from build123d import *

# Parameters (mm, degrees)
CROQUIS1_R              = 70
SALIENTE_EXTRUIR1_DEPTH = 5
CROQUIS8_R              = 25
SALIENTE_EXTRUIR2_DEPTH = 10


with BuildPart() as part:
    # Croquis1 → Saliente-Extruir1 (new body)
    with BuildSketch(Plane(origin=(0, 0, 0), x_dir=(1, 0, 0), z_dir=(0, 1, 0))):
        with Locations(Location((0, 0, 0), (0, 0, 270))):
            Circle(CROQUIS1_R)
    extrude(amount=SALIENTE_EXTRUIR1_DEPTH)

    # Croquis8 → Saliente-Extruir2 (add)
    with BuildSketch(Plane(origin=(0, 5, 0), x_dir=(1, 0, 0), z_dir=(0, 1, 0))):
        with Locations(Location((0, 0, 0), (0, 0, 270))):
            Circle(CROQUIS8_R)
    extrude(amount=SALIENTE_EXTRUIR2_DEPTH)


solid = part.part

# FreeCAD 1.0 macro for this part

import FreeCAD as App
import Part
import Sketcher

doc = App.newDocument("Part")
params = doc.addObject("Spreadsheet::Sheet", "Params")
for row, (alias, value) in enumerate([
    ("sketch1_diameter", "140 mm"),
    ("pad1_length", "5 mm"),
    ("sketch2_diameter", "50 mm"),
    ("pad2_length", "10 mm"),
], start=1):
    params.set(f"A{row}", alias)
    params.set(f"B{row}", "=" + value)
    params.setAlias(f"B{row}", alias)

body = doc.addObject("PartDesign::Body", "Body")

# Sketch on XZ plane
sketch1 = body.newObject("Sketcher::SketchObject", "Sketch")
sketch1.AttachmentSupport = (doc.getObject("XZ_Plane"), [""])
sketch1.MapMode = "FlatFace"
sketch1.addGeometry(Part.Circle(App.Vector(0, 0, 0), App.Vector(0, 0, 1), 70), False)
sketch1.addConstraint([
    Sketcher.Constraint("Coincident", 0, 3, -1, 1),
    Sketcher.Constraint("Diameter", 0, 140.0),
])
sketch1.setExpression("Constraints[1]", "Params.sketch1_diameter")
pad1 = body.newObject("PartDesign::Pad", "Pad")
pad1.Profile = sketch1
pad1.setExpression("Length", "Params.pad1_length")
pad1.Reversed = True

# Sketch on XZ plane
sketch2 = body.newObject("Sketcher::SketchObject", "Sketch001")
sketch2.AttachmentSupport = (doc.getObject("XZ_Plane"), [""])
sketch2.MapMode = "FlatFace"
sketch2.AttachmentOffset = App.Placement(App.Vector(0, 0, -5), App.Rotation())
sketch2.addGeometry(Part.Circle(App.Vector(0, 0, 0), App.Vector(0, 0, 1), 25), False)
sketch2.addConstraint([
    Sketcher.Constraint("Coincident", 0, 3, -1, 1),
    Sketcher.Constraint("Diameter", 0, 50.0),
])
sketch2.setExpression("Constraints[1]", "Params.sketch2_diameter")
pad2 = body.newObject("PartDesign::Pad", "Pad001")
pad2.Profile = sketch2
pad2.setExpression("Length", "Params.pad2_length")
pad2.Reversed = True

doc.recompute()
